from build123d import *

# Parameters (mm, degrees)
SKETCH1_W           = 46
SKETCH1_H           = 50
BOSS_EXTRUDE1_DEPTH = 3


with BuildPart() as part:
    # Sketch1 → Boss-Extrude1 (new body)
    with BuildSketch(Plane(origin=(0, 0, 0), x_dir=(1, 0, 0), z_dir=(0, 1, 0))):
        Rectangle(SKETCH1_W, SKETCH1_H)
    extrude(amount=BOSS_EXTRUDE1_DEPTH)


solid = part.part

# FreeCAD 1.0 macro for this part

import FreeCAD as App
import Part
import Sketcher
Q = App.Units.Quantity


def add_polygon(sketch, points):
    """Adds a closed chain of lines whose ends are joined by coincident constraints."""
    first, n = sketch.GeometryCount, len(points)
    for a, b in zip(points, points[1:] + points[:1]):
        sketch.addGeometry(Part.LineSegment(App.Vector(*a, 0), App.Vector(*b, 0)), False)
    for i in range(n):
        sketch.addConstraint(Sketcher.Constraint("Coincident", first + i, 2, first + (i + 1) % n, 1))

doc = App.newDocument("Part")
params = doc.addObject("Spreadsheet::Sheet", "Params")
for row, (alias, value) in enumerate([
    ("sketch1_width", "46 mm"),
    ("sketch1_height", "50 mm"),
    ("pad1_length", "3 mm"),
], start=1):
    params.set(f"A{row}", alias)
    params.set(f"B{row}", "=" + value)
    params.setAlias(f"B{row}", alias)

body = doc.addObject("PartDesign::Body", "Body")

sketch1 = body.newObject("Sketcher::SketchObject", "Sketch")
sketch1.AttachmentSupport = (doc.getObject("XZ_Plane"), [""])
sketch1.MapMode = "FlatFace"
add_polygon(sketch1, [(-23, -25), (-23, 25), (23, 25), (23, -25)])
sketch1.addConstraint(Sketcher.Constraint("Vertical", 0))
sketch1.addConstraint(Sketcher.Constraint("Horizontal", 1))
sketch1.addConstraint(Sketcher.Constraint("Vertical", 2))
sketch1.addConstraint(Sketcher.Constraint("Horizontal", 3))
sketch1.addConstraint(Sketcher.Constraint("Symmetric", 0, 2, 2, 2, -1, 1))
sketch1.addConstraint(Sketcher.Constraint("DistanceX", 1, 1, 1, 2, Q("46 mm")))
sketch1.addConstraint(Sketcher.Constraint("DistanceY", 0, 1, 0, 2, Q("50 mm")))
sketch1.setExpression("Constraints[9]", "Params.sketch1_width")
sketch1.setExpression("Constraints[10]", "Params.sketch1_height")
pad1 = body.newObject("PartDesign::Pad", "Pad")
pad1.Profile = sketch1
pad1.setExpression("Length", "Params.pad1_length")
pad1.Reversed = True

doc.recompute()
